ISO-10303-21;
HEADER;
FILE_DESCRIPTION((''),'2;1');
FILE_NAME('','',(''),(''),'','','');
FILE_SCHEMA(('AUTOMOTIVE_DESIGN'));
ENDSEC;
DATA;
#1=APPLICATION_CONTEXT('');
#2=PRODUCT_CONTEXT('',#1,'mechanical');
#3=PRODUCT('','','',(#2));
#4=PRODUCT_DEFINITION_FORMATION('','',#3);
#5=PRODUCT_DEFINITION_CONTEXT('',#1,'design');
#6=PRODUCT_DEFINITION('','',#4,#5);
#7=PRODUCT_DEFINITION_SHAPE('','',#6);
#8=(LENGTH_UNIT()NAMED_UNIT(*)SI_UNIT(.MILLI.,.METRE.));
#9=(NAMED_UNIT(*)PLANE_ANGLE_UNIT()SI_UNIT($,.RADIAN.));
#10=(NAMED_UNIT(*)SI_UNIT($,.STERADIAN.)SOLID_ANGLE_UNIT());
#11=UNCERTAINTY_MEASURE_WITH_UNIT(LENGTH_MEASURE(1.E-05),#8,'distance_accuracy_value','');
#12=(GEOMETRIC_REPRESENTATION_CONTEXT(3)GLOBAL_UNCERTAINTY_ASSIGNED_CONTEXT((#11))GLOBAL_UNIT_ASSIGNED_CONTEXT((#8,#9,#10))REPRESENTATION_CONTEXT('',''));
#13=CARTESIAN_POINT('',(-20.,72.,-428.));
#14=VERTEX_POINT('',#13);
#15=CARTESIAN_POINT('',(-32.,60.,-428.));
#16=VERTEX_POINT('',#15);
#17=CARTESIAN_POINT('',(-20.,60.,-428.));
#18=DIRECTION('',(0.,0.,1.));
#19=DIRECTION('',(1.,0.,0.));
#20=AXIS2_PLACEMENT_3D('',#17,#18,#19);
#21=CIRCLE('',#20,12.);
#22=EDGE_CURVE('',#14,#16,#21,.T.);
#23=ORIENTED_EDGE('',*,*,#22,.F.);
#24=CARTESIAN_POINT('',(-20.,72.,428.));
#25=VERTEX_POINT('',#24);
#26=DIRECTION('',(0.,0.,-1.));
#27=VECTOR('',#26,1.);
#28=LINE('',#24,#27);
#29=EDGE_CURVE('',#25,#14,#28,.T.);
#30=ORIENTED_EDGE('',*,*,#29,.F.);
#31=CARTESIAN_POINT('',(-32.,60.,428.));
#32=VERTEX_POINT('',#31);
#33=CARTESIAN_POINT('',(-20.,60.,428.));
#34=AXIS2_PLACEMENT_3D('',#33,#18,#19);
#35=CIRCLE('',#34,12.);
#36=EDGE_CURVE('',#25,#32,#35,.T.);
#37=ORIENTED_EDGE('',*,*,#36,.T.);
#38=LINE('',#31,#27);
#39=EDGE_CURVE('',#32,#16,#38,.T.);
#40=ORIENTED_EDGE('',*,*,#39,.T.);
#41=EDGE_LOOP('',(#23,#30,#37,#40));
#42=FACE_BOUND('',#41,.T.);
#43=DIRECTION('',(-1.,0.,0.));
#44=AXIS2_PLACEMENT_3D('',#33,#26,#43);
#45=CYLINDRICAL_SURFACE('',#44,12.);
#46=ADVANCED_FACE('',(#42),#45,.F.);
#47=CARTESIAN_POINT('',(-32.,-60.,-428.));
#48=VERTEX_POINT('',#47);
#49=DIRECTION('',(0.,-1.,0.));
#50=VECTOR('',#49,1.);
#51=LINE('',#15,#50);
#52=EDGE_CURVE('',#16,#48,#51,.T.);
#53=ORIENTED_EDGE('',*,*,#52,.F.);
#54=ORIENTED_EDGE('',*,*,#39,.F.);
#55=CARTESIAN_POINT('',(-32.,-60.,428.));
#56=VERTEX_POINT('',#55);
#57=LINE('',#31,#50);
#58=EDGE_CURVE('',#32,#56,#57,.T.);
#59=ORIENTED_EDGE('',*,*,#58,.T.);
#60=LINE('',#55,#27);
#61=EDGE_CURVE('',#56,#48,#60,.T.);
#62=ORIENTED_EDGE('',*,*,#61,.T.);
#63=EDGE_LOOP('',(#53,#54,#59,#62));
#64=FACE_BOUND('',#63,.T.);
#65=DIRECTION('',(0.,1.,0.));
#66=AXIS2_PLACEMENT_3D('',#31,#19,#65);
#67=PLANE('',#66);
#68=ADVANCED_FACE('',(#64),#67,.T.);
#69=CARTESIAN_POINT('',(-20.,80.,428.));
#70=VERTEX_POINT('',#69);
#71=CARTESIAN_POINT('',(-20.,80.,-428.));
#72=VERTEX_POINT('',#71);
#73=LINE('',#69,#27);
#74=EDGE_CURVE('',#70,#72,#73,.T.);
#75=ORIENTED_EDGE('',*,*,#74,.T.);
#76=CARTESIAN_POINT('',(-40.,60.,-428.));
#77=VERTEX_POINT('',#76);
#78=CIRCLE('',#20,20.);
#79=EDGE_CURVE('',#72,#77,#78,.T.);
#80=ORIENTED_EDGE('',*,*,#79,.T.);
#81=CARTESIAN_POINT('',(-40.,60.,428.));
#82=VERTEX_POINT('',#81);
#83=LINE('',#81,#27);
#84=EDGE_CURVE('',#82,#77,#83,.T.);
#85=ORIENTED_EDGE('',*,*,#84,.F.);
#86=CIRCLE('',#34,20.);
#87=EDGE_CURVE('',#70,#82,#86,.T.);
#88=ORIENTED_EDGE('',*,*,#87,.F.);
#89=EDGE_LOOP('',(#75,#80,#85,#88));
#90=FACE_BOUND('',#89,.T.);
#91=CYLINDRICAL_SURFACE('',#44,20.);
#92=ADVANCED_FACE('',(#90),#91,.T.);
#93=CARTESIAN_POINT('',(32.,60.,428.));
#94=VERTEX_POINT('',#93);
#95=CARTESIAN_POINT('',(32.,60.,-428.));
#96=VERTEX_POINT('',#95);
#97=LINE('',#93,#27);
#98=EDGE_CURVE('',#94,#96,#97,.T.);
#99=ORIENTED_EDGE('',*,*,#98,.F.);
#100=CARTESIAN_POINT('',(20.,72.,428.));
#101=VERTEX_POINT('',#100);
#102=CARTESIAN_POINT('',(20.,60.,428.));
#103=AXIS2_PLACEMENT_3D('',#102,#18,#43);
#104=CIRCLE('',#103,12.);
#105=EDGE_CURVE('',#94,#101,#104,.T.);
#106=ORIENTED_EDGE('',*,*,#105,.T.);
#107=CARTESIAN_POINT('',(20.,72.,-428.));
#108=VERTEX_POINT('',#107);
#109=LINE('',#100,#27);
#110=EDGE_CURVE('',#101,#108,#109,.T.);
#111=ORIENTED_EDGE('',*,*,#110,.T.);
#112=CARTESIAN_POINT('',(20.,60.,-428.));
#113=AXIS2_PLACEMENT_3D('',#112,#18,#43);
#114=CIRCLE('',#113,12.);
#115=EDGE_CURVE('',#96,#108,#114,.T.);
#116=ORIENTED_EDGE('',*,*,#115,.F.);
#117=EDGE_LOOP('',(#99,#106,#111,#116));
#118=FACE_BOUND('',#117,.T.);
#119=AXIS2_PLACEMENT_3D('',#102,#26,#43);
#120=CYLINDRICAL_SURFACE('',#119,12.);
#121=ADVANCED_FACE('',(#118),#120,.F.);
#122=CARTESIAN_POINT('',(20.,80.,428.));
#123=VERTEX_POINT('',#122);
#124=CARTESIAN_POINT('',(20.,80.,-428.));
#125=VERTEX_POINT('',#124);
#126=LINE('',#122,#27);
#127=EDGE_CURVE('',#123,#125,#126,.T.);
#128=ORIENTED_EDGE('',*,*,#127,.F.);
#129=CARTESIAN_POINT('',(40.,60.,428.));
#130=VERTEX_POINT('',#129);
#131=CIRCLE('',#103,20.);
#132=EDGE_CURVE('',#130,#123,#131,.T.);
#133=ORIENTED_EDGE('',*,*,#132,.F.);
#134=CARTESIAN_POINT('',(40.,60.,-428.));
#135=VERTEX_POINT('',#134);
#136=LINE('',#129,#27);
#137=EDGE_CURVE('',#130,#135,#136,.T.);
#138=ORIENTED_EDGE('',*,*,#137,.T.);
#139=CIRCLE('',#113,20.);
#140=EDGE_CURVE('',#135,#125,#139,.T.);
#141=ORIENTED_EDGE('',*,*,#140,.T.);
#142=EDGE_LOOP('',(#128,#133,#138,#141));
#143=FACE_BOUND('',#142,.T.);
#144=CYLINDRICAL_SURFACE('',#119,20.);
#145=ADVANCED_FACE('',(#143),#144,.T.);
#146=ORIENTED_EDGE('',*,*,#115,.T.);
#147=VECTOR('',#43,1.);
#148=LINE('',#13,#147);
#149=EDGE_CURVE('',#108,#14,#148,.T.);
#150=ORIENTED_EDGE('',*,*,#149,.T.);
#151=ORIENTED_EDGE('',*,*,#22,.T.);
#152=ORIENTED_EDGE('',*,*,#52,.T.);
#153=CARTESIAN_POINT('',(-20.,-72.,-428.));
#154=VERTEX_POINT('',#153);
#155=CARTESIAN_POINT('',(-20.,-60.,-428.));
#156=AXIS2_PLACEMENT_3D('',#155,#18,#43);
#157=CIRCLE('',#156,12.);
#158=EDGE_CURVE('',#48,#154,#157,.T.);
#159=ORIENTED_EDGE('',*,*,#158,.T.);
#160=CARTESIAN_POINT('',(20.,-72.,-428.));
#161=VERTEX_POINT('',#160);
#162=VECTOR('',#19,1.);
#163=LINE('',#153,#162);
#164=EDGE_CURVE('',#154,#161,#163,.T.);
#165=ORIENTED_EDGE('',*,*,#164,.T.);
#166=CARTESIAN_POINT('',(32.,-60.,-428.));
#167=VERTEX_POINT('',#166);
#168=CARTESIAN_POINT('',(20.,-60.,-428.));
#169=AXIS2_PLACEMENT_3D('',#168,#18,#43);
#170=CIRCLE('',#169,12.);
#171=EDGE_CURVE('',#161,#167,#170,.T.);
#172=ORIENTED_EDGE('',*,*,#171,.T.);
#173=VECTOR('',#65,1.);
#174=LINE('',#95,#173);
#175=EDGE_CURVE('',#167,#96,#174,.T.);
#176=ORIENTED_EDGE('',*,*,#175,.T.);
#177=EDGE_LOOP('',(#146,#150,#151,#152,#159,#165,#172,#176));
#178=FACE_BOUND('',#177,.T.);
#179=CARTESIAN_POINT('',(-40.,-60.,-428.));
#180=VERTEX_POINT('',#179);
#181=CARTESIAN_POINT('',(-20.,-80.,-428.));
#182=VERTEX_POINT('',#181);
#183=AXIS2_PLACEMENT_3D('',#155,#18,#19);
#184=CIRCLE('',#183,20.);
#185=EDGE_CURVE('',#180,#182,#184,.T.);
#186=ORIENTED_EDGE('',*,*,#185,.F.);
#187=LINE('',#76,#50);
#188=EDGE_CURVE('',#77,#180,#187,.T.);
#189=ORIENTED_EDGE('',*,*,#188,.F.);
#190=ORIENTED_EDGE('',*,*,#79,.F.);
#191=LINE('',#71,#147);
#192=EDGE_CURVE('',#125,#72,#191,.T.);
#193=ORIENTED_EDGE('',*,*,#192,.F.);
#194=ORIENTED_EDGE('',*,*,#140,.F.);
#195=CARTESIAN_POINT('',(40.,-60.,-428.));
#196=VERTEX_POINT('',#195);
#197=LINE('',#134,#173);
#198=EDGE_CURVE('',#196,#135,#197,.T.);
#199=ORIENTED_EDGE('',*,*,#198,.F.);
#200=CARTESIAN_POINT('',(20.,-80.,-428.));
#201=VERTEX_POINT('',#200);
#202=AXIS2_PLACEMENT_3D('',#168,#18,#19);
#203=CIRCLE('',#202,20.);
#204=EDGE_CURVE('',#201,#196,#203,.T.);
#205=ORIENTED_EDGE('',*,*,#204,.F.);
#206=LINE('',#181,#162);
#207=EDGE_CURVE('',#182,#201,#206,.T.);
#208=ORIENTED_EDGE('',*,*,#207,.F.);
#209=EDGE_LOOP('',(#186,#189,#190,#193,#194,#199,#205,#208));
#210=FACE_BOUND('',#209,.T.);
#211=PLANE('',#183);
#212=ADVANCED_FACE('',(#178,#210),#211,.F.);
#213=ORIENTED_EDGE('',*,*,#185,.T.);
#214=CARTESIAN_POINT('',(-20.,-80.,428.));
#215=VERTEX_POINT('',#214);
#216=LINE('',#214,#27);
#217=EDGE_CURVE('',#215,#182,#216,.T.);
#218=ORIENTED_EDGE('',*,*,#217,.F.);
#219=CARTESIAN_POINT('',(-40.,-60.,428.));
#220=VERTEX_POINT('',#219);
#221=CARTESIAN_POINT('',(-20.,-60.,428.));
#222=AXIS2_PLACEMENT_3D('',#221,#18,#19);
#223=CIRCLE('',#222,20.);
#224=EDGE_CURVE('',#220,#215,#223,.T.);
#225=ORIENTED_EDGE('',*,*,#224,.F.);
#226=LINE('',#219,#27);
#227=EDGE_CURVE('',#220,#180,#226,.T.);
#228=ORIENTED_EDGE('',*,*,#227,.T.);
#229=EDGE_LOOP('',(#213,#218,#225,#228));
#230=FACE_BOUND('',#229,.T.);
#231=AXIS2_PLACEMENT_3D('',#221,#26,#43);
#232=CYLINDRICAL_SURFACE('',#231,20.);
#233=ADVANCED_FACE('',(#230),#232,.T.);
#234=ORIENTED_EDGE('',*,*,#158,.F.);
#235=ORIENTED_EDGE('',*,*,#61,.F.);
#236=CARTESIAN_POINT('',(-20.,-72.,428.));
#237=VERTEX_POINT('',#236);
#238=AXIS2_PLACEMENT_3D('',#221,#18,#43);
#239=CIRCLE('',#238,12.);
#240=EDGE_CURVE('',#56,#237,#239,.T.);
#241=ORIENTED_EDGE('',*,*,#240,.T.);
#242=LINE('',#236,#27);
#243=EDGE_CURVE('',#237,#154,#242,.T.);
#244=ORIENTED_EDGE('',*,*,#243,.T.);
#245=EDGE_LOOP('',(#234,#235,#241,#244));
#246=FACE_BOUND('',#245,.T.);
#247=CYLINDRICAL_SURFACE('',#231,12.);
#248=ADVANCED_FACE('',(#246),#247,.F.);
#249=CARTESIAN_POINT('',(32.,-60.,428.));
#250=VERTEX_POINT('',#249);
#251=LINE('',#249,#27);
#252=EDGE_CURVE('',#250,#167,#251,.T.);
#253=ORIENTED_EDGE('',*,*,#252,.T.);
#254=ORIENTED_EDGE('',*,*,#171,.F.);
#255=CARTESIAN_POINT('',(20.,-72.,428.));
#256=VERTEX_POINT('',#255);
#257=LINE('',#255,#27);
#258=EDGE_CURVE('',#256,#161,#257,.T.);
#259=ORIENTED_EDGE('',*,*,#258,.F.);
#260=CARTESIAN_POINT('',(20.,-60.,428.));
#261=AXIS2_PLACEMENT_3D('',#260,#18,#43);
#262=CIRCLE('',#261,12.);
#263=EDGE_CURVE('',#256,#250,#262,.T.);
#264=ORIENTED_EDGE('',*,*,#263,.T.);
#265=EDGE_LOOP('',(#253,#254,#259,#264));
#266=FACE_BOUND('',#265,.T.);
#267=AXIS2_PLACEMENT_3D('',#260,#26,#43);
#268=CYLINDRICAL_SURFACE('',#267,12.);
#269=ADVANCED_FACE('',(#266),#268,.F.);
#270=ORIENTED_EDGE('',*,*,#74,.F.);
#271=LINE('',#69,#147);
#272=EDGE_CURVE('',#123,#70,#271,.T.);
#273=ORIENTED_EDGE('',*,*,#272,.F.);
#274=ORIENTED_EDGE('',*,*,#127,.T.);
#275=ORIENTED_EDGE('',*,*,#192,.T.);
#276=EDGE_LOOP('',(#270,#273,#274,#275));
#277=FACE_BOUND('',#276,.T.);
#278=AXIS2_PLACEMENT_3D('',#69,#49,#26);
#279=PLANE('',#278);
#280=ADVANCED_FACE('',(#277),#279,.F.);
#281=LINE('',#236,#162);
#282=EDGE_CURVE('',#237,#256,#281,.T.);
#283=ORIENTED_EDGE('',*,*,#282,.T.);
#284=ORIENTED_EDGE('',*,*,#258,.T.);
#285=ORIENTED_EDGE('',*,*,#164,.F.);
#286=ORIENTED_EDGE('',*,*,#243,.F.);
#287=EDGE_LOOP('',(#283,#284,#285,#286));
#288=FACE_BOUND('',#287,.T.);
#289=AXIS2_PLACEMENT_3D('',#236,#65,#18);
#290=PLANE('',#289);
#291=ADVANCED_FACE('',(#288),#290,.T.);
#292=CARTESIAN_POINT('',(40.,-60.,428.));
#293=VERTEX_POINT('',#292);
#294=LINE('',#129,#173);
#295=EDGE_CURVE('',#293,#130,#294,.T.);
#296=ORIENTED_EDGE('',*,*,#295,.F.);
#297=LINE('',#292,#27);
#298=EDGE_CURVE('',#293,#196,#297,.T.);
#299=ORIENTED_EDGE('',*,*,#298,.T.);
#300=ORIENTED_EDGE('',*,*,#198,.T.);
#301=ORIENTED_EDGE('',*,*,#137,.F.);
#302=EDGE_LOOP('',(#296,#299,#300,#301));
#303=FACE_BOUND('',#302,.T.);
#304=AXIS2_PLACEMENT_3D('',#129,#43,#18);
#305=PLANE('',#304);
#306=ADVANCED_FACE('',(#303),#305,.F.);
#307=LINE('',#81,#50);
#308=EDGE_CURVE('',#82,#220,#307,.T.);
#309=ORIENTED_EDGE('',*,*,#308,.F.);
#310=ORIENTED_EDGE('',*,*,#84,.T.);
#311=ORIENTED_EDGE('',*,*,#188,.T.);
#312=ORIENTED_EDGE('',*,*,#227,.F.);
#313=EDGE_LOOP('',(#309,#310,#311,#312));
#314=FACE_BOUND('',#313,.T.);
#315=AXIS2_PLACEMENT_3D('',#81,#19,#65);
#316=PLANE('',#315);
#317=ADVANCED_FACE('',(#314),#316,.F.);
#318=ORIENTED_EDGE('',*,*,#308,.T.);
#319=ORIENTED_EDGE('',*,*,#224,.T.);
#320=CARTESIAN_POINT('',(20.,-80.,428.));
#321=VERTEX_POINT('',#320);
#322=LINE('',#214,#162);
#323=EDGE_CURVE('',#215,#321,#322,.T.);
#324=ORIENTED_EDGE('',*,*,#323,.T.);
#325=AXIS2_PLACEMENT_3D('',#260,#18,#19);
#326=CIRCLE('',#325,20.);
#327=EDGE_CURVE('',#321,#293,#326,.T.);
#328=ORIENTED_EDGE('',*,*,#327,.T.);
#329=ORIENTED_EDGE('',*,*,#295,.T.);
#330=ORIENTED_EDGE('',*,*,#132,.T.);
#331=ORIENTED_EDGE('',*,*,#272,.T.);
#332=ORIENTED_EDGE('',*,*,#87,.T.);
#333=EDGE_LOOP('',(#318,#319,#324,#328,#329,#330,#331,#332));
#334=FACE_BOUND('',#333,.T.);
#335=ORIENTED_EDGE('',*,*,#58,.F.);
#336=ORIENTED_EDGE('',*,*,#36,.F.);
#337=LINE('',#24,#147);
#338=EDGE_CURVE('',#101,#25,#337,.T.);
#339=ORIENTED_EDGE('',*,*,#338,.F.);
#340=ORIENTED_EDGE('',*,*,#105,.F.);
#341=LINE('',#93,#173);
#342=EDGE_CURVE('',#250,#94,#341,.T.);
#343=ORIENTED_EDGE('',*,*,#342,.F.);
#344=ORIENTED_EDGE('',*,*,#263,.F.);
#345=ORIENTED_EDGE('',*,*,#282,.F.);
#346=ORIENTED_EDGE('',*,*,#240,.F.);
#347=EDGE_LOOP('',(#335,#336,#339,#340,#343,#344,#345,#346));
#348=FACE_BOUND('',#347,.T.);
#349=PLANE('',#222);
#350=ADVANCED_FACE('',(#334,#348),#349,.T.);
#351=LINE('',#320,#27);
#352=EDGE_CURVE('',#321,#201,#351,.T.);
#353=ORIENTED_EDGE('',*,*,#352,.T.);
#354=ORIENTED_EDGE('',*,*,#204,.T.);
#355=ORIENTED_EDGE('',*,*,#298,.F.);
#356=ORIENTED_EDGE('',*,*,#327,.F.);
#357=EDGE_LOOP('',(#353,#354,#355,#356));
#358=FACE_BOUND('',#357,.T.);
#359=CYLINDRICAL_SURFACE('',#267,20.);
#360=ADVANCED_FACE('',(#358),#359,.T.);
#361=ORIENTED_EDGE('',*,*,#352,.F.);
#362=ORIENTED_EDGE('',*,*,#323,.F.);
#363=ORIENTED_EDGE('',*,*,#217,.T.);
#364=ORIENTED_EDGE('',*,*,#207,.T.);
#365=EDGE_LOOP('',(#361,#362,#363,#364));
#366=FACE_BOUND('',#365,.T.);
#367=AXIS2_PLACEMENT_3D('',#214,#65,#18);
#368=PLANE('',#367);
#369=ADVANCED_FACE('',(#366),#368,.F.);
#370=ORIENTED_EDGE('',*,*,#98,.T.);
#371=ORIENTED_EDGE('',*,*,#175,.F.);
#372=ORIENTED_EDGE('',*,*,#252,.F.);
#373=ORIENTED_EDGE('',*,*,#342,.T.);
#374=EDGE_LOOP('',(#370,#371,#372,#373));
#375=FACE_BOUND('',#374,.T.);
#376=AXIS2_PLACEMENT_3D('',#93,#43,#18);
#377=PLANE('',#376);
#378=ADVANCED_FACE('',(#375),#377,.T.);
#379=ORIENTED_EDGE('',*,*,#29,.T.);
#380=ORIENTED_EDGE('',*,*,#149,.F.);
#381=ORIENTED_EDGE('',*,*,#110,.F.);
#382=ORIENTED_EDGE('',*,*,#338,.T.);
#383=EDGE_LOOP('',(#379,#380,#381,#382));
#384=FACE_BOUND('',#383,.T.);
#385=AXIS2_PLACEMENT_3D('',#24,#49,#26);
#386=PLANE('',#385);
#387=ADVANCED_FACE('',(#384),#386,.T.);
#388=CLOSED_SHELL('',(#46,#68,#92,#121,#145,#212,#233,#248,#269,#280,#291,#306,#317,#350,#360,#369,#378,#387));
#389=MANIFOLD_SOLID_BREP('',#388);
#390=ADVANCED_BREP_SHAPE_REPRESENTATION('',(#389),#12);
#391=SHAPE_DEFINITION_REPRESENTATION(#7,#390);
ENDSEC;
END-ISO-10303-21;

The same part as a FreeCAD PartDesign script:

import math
import FreeCAD as App
import Part
import Sketcher
from FreeCAD import Vector
Q = App.Units.Quantity

doc = App.newDocument("Part")
params = doc.addObject("Spreadsheet::Sheet", "Params")
for row, (alias, value) in enumerate([
    ("sketch1_radius", "20 mm"),
    ("sketch1_radius2", "12 mm"),
    ("sketch1_width", "40 mm"),
    ("sketch1_height", "120 mm"),
    ("pad1_length", "856 mm"),
], start=1):
    params.set(f"A{row}", alias)
    params.set(f"B{row}", "=" + value)
    params.setAlias(f"B{row}", alias)

body = doc.addObject("PartDesign::Body", "Body")

# Sketch on XY plane
sketch1 = body.newObject("Sketcher::SketchObject", "Sketch")
sketch1.AttachmentSupport = (doc.getObject("XY_Plane"), [""])
sketch1.MapMode = "FlatFace"
sketch1.addGeometry([
    Part.LineSegment(Vector(20, 80, 0), Vector(-20, 80, 0)),  # 0
    Part.ArcOfCircle(Part.Circle(Vector(-20, 60, 0), Vector(0, 0, 1), 20), math.radians(90), math.radians(180)),  # 1
    Part.LineSegment(Vector(-40, 60, 0), Vector(-40, -60, 0)),  # 2
    Part.ArcOfCircle(Part.Circle(Vector(-20, -60, 0), Vector(0, 0, 1), 20), math.radians(180), math.radians(270)),  # 3
    Part.LineSegment(Vector(-20, -80, 0), Vector(20, -80, 0)),  # 4
    Part.ArcOfCircle(Part.Circle(Vector(20, -60, 0), Vector(0, 0, 1), 20), math.radians(-90), math.radians(0)),  # 5
    Part.LineSegment(Vector(40, -60, 0), Vector(40, 60, 0)),  # 6
    Part.ArcOfCircle(Part.Circle(Vector(20, 60, 0), Vector(0, 0, 1), 20), math.radians(0), math.radians(90)),  # 7
    Part.LineSegment(Vector(-20, 72, 0), Vector(20, 72, 0)),  # 8
    Part.ArcOfCircle(Part.Circle(Vector(20, 60, 0), Vector(0, 0, 1), 12), math.radians(0), math.radians(90)),  # 9
    Part.LineSegment(Vector(32, 60, 0), Vector(32, -60, 0)),  # 10
    Part.ArcOfCircle(Part.Circle(Vector(20, -60, 0), Vector(0, 0, 1), 12), math.radians(-90), math.radians(0)),  # 11
    Part.LineSegment(Vector(20, -72, 0), Vector(-20, -72, 0)),  # 12
    Part.ArcOfCircle(Part.Circle(Vector(-20, -60, 0), Vector(0, 0, 1), 12), math.radians(-180), math.radians(-90)),  # 13
    Part.LineSegment(Vector(-32, -60, 0), Vector(-32, 60, 0)),  # 14
    Part.ArcOfCircle(Part.Circle(Vector(-20, 60, 0), Vector(0, 0, 1), 12), math.radians(90), math.radians(180)),  # 15
], False)
sketch1.addConstraint([
    Sketcher.Constraint("Tangent", 0, 2, 1, 1),
    Sketcher.Constraint("Tangent", 1, 2, 2, 1),
    Sketcher.Constraint("Tangent", 2, 2, 3, 1),
    Sketcher.Constraint("Tangent", 3, 2, 4, 1),
    Sketcher.Constraint("Tangent", 4, 2, 5, 1),
    Sketcher.Constraint("Tangent", 5, 2, 6, 1),
    Sketcher.Constraint("Tangent", 6, 2, 7, 1),
    Sketcher.Constraint("Tangent", 7, 2, 0, 1),
    Sketcher.Constraint("Tangent", 8, 2, 9, 2),
    Sketcher.Constraint("Tangent", 9, 1, 10, 1),
    Sketcher.Constraint("Tangent", 10, 2, 11, 2),
    Sketcher.Constraint("Tangent", 11, 1, 12, 1),
    Sketcher.Constraint("Tangent", 12, 2, 13, 2),
    Sketcher.Constraint("Tangent", 13, 1, 14, 1),
    Sketcher.Constraint("Tangent", 14, 2, 15, 2),
    Sketcher.Constraint("Tangent", 15, 1, 8, 1),
    Sketcher.Constraint("Horizontal", 0),
    Sketcher.Constraint("Vertical", 2),
    Sketcher.Constraint("Horizontal", 4),
    Sketcher.Constraint("Vertical", 6),
    Sketcher.Constraint("Horizontal", 8),
    Sketcher.Constraint("Vertical", 10),
    Sketcher.Constraint("Horizontal", 12),
    Sketcher.Constraint("Vertical", 14),
    Sketcher.Constraint("Coincident", 9, 3, 7, 3),
    Sketcher.Constraint("Coincident", 11, 3, 5, 3),
    Sketcher.Constraint("Coincident", 13, 3, 3, 3),
    Sketcher.Constraint("Equal", 1, 3),
    Sketcher.Constraint("Equal", 3, 5),
    Sketcher.Constraint("Equal", 5, 7),
    Sketcher.Constraint("Equal", 13, 15),
    Sketcher.Constraint("Symmetric", 1, 3, 5, 3, -1, 1),
    Sketcher.Constraint("Radius", 1, Q("20 mm")),
    Sketcher.Constraint("Radius", 9, Q("12 mm")),
    Sketcher.Constraint("DistanceX", 0, 2, 0, 1, Q("40 mm")),
    Sketcher.Constraint("DistanceY", 2, 2, 2, 1, Q("120 mm")),
])
sketch1.setExpression("Constraints[32]", "Params.sketch1_radius")
sketch1.setExpression("Constraints[33]", "Params.sketch1_radius2")
sketch1.setExpression("Constraints[34]", "Params.sketch1_width")
sketch1.setExpression("Constraints[35]", "Params.sketch1_height")
pad1 = body.newObject("PartDesign::Pad", "Pad")
pad1.Profile = sketch1
pad1.setExpression("Length", "Params.pad1_length")
pad1.Midplane = True

doc.recompute()
